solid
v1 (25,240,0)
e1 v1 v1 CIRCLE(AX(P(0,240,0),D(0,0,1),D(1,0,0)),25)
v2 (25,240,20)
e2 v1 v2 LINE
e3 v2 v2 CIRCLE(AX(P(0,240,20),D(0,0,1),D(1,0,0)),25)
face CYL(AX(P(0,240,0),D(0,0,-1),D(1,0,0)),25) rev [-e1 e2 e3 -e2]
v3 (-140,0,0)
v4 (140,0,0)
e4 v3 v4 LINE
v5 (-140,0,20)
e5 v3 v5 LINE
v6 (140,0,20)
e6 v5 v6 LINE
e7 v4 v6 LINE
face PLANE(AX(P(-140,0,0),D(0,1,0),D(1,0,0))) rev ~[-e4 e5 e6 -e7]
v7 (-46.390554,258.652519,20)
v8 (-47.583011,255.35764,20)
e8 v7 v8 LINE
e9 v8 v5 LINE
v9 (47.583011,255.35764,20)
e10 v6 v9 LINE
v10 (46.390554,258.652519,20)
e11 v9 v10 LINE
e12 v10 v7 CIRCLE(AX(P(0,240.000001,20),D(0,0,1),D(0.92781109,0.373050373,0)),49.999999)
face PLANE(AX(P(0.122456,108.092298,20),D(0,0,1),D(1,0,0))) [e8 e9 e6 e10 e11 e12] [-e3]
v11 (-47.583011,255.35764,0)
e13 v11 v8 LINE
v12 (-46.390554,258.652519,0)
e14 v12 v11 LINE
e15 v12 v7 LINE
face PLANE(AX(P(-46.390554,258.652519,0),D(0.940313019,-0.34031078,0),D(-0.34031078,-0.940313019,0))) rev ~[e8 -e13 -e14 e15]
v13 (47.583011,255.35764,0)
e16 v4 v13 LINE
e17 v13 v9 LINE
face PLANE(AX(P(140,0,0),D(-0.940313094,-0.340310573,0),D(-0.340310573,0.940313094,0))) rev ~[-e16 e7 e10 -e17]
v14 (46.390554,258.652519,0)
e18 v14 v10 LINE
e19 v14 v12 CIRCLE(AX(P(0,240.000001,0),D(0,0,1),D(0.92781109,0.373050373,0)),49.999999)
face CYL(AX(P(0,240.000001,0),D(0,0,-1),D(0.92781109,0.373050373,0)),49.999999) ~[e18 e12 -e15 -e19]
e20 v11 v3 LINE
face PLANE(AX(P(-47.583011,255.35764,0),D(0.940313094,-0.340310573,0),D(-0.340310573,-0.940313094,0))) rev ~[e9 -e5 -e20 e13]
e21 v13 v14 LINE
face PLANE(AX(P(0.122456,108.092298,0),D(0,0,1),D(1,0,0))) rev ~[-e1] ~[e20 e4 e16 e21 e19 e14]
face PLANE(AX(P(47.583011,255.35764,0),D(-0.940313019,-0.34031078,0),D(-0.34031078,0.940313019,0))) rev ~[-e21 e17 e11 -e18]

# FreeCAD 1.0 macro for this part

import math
import FreeCAD as App
import Part
import Sketcher
Q = App.Units.Quantity

doc = App.newDocument("Part")
params = doc.addObject("Spreadsheet::Sheet", "Params")
for row, (alias, value) in enumerate([
    ("sketch1_diameter", "50 mm"),
    ("sketch1_radius", "49.999999 mm"),
    ("sketch1_width", "280 mm"),
    ("pad1_length", "20 mm"),
], start=1):
    params.set(f"A{row}", alias)
    params.set(f"B{row}", "=" + value)
    params.setAlias(f"B{row}", alias)

body = doc.addObject("PartDesign::Body", "Body")

sketch1 = body.newObject("Sketcher::SketchObject", "Sketch")
sketch1.AttachmentSupport = (doc.getObject("XY_Plane"), [""])
sketch1.MapMode = "FlatFace"
sketch1.addGeometry(Part.LineSegment(App.Vector(-140, 0, 0), App.Vector(140, 0, 0)), False)
sketch1.addGeometry(Part.LineSegment(App.Vector(140, 0, 0), App.Vector(47.583011, 255.35764, 0)), False)
sketch1.addGeometry(Part.LineSegment(App.Vector(47.583011, 255.35764, 0), App.Vector(46.390554, 258.652519, 0)), False)
sketch1.addGeometry(Part.ArcOfCircle(Part.Circle(App.Vector(0, 240.000001, 0), App.Vector(0, 0, 1), 49.999999), math.radians(21.903865), math.radians(158.096135)), False)
sketch1.addGeometry(Part.LineSegment(App.Vector(-46.390554, 258.652519, 0), App.Vector(-47.583011, 255.35764, 0)), False)
sketch1.addGeometry(Part.LineSegment(App.Vector(-47.583011, 255.35764, 0), App.Vector(-140, 0, 0)), False)
sketch1.addGeometry(Part.Circle(App.Vector(0, 240, 0), App.Vector(0, 0, 1), 25), False)
sketch1.addConstraint(Sketcher.Constraint("Coincident", 0, 2, 1, 1))
sketch1.addConstraint(Sketcher.Constraint("Coincident", 1, 2, 2, 1))
sketch1.addConstraint(Sketcher.Constraint("Coincident", 2, 2, 3, 1))
sketch1.addConstraint(Sketcher.Constraint("Coincident", 3, 2, 4, 1))
sketch1.addConstraint(Sketcher.Constraint("Coincident", 4, 2, 5, 1))
sketch1.addConstraint(Sketcher.Constraint("Coincident", 5, 2, 0, 1))
sketch1.addConstraint(Sketcher.Constraint("Horizontal", 0))
sketch1.addConstraint(Sketcher.Constraint("Coincident", 6, 3, 3, 3))
sketch1.addConstraint(Sketcher.Constraint("PointOnObject", 3, 3, -2))
sketch1.addConstraint(Sketcher.Constraint("PointOnObject", 0, 2, -1))
sketch1.addConstraint(Sketcher.Constraint("Diameter", 6, Q("50 mm")))
sketch1.addConstraint(Sketcher.Constraint("Radius", 3, Q("49.999999 mm")))
sketch1.addConstraint(Sketcher.Constraint("DistanceX", 0, 1, 0, 2, Q("280 mm")))
sketch1.addConstraint(Sketcher.Constraint("DistanceY", -1, 1, 3, 3, Q("240.000001 mm")))
sketch1.addConstraint(Sketcher.Constraint("DistanceX", -1, 1, 0, 2, Q("140 mm")))
sketch1.addConstraint(Sketcher.Constraint("Distance", 1, Q("271.566611 mm")))
sketch1.addConstraint(Sketcher.Constraint("Distance", 5, Q("271.566611 mm")))
sketch1.addConstraint(Sketcher.Constraint("DistanceX", -1, 1, 1, 2, Q("47.583011 mm")))
sketch1.addConstraint(Sketcher.Constraint("DistanceY", -1, 1, 2, 2, Q("258.652519 mm")))
sketch1.addConstraint(Sketcher.Constraint("DistanceY", -1, 1, 3, 2, Q("258.652519 mm")))
sketch1.addConstraint(Sketcher.Constraint("DistanceX", 4, 2, -1, 1, Q("47.583011 mm")))
sketch1.setExpression("Constraints[10]", "Params.sketch1_diameter")
sketch1.setExpression("Constraints[11]", "Params.sketch1_radius")
sketch1.setExpression("Constraints[12]", "Params.sketch1_width")
pad1 = body.newObject("PartDesign::Pad", "Pad")
pad1.Profile = sketch1
pad1.setExpression("Length", "Params.pad1_length")

doc.recompute()
